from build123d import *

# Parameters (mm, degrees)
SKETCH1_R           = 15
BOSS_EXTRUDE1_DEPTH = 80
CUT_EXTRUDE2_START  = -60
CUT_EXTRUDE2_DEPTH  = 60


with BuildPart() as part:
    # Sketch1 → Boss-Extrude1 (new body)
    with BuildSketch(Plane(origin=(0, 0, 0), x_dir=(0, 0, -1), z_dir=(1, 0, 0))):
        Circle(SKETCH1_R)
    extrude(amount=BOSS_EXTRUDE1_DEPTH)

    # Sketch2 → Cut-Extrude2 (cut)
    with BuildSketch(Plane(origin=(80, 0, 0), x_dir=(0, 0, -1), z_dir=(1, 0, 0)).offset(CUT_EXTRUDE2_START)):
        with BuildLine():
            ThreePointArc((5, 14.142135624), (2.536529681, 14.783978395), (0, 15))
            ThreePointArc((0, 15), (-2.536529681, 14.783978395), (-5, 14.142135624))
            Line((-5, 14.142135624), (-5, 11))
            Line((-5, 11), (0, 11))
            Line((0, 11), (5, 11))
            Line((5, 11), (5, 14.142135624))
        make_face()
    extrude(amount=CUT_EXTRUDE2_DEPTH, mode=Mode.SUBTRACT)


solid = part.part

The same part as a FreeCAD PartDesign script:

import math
import FreeCAD as App
import Part
import Sketcher

V = App.Vector

doc = App.newDocument("Part")
body = doc.addObject("PartDesign::Body", "Body")

# Sketch on YZ plane
sketch1 = body.newObject("Sketcher::SketchObject", "Sketch")
sketch1.AttachmentSupport = (doc.getObject("YZ_Plane"), [""])
sketch1.MapMode = "FlatFace"
sketch1.addGeometry(Part.Circle(V(0, 0, 0), V(0, 0, 1), 15), False)
sketch1.addConstraint([
    Sketcher.Constraint("Coincident", 0, 3, -1, 1),
    Sketcher.Constraint("Diameter", 0, 30.0),
])
pad1 = body.newObject("PartDesign::Pad", "Pad")
pad1.Profile = sketch1
pad1.Length = 80

# Sketch on YZ plane
sketch2 = body.newObject("Sketcher::SketchObject", "Sketch001")
sketch2.AttachmentSupport = (doc.getObject("YZ_Plane"), [""])
sketch2.MapMode = "FlatFace"
sketch2.AttachmentOffset = App.Placement(V(0, 0, 20), App.Rotation())
sketch2.addGeometry([
    Part.ArcOfCircle(Part.Circle(V(0, 0, 0), V(0, 0, 1), 15), math.radians(-19.47), math.radians(0)),  # 0
    Part.ArcOfCircle(Part.Circle(V(0, 0, 0), V(0, 0, 1), 15), math.radians(0), math.radians(19.47)),  # 1
    Part.LineSegment(V(14.1, 5, 0), V(11, 5, 0)),  # 2
    Part.LineSegment(V(11, 5, 0), V(11, -5, 0)),  # 3
    Part.LineSegment(V(11, -5, 0), V(14.1, -5, 0)),  # 4
], False)
sketch2.addConstraint([
    Sketcher.Constraint("Tangent", 0, 2, 1, 1),
    Sketcher.Constraint("Coincident", 1, 2, 2, 1),
    Sketcher.Constraint("Coincident", 2, 2, 3, 1),
    Sketcher.Constraint("Coincident", 3, 2, 4, 1),
    Sketcher.Constraint("Coincident", 4, 2, 0, 1),
    Sketcher.Constraint("Horizontal", 2),
    Sketcher.Constraint("Vertical", 3),
    Sketcher.Constraint("Horizontal", 4),
    Sketcher.Constraint("Coincident", 0, 3, -1, 1),
    Sketcher.Constraint("Equal", 0, 1),
    Sketcher.Constraint("PointOnObject", 0, 2, -1),
    Sketcher.Constraint("Vertical", 1, 2, 4, 2),
    Sketcher.Constraint("Radius", 0, 15.0),
    Sketcher.Constraint("DistanceY", 3, 2, 3, 1, 10.0),
    Sketcher.Constraint("DistanceX", -1, 1, 2, 2, 11.0),
])
pocket1 = body.newObject("PartDesign::Pocket", "Pocket")
pocket1.Profile = sketch2
pocket1.Length = 60
pocket1.Reversed = True

doc.recompute()
